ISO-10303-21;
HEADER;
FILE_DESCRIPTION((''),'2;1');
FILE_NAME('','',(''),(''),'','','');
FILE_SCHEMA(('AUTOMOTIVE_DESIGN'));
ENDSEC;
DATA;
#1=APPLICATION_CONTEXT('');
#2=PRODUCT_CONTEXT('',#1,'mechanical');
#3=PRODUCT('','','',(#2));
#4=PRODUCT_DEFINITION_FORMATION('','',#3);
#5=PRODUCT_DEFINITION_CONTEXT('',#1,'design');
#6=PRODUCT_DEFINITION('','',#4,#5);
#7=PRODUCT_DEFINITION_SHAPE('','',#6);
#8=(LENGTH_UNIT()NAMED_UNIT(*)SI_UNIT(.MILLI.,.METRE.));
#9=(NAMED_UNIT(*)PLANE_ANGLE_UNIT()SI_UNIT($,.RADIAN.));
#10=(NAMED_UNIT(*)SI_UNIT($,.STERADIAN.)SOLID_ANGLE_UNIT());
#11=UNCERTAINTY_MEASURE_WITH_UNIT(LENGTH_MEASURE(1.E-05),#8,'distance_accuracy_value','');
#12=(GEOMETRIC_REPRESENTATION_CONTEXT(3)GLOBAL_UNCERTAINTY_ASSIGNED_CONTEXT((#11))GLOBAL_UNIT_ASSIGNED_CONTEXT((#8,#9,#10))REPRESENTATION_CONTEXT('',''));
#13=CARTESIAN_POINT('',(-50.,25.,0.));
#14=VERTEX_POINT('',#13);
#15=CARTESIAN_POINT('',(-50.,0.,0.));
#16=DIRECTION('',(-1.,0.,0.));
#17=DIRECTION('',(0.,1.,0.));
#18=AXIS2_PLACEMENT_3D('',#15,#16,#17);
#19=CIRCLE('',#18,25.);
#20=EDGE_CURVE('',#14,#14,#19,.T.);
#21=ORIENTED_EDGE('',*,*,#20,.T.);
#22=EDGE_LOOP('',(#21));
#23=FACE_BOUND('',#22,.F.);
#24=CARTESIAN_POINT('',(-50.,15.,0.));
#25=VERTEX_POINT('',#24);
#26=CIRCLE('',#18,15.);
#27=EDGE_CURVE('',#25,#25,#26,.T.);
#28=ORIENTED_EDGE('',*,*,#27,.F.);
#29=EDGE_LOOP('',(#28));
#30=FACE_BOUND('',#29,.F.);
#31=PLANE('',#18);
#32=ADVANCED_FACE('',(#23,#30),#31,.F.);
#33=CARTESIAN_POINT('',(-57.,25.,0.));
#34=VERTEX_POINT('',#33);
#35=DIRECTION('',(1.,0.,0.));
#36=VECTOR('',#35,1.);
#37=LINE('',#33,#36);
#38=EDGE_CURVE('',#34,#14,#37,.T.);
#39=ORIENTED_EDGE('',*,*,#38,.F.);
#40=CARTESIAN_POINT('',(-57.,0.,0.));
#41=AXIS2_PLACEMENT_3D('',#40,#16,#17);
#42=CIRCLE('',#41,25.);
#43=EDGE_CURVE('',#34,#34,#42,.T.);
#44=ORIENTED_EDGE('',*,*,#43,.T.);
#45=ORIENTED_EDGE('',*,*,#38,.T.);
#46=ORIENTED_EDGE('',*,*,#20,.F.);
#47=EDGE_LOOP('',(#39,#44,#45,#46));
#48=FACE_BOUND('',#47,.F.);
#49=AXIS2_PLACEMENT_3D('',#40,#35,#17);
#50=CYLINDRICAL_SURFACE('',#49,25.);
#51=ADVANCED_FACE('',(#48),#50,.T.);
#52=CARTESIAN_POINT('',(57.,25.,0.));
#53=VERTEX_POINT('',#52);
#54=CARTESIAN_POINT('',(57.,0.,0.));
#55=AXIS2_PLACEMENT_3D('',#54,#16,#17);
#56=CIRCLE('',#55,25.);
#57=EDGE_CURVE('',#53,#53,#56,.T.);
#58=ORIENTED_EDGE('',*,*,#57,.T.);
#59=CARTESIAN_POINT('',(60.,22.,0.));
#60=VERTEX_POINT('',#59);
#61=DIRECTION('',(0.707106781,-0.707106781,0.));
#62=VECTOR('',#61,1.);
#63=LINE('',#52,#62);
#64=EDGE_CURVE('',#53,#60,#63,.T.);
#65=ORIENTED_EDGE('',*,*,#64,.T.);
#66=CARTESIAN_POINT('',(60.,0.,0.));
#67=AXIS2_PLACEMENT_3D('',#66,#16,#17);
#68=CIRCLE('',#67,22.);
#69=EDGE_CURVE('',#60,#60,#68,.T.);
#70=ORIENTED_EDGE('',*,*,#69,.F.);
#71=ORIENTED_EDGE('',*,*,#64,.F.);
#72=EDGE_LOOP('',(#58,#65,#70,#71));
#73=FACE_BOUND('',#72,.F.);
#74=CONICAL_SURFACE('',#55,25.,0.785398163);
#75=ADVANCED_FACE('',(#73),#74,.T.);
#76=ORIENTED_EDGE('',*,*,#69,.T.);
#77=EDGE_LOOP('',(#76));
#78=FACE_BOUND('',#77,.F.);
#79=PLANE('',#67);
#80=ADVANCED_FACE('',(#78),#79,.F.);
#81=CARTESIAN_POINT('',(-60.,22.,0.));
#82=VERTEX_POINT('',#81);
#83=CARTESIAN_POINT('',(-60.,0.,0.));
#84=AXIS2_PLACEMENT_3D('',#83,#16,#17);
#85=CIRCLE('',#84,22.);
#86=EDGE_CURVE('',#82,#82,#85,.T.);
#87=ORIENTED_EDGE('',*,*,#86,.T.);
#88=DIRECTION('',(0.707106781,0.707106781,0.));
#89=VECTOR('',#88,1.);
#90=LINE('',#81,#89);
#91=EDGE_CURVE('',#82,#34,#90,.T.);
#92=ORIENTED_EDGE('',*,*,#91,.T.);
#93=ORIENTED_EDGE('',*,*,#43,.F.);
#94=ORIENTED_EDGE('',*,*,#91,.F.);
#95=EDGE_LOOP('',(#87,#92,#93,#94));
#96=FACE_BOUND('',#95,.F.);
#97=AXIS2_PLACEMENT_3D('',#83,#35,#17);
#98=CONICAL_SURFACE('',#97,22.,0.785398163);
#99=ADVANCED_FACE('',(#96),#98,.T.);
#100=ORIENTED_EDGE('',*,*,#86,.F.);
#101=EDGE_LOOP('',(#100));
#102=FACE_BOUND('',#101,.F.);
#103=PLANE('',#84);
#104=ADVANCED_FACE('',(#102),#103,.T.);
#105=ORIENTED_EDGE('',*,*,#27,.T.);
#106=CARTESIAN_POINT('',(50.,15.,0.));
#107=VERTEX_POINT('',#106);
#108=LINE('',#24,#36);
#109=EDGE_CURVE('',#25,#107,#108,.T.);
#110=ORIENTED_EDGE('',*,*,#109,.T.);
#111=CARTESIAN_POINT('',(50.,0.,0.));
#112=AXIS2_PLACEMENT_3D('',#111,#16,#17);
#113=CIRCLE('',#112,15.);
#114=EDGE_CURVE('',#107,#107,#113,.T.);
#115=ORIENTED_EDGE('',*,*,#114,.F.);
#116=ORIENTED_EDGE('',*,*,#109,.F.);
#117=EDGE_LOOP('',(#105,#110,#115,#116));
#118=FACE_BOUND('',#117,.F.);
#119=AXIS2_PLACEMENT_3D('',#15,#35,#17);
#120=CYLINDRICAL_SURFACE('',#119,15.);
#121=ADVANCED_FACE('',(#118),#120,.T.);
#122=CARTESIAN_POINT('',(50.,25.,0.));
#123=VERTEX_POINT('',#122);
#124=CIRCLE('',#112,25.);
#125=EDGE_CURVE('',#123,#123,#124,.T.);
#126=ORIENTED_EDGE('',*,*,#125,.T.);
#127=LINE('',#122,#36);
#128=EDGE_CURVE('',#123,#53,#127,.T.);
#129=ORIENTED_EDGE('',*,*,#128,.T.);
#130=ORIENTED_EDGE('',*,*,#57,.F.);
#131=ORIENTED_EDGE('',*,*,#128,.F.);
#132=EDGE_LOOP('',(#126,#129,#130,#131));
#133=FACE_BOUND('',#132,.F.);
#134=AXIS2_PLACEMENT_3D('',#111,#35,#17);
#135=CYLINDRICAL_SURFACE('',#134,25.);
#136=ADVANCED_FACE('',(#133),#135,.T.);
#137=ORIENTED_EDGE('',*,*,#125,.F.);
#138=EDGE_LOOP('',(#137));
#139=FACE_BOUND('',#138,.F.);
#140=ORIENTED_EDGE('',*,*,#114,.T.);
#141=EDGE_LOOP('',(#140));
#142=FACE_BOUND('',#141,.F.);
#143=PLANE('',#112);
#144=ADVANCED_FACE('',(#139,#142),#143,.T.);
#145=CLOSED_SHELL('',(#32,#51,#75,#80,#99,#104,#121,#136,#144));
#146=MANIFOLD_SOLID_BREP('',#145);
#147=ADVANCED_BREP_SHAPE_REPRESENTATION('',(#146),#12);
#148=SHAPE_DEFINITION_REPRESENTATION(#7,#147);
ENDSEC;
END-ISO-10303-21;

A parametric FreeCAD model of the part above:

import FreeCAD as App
import Part
import Sketcher
from FreeCAD import Vector
Q = App.Units.Quantity

doc = App.newDocument("Part")
body = doc.addObject("PartDesign::Body", "Body")

# Sketch on XY plane
sketch1 = body.newObject("Sketcher::SketchObject", "Sketch")
sketch1.AttachmentSupport = (doc.getObject("XY_Plane"), [""])
sketch1.MapMode = "FlatFace"
sketch1.addGeometry(Part.LineSegment(Vector(50, 15, 0), Vector(-50, 15, 0)), False)
sketch1.addGeometry(Part.LineSegment(Vector(-50, 15, 0), Vector(-50, 25, 0)), False)
sketch1.addGeometry(Part.LineSegment(Vector(-50, 25, 0), Vector(-57, 25, 0)), False)
sketch1.addGeometry(Part.LineSegment(Vector(-57, 25, 0), Vector(-60, 22, 0)), False)
sketch1.addGeometry(Part.LineSegment(Vector(-60, 22, 0), Vector(-60, 0, 0)), False)
sketch1.addGeometry(Part.LineSegment(Vector(-60, 0, 0), Vector(60, 0, 0)), False)
sketch1.addGeometry(Part.LineSegment(Vector(60, 0, 0), Vector(60, 22, 0)), False)
sketch1.addGeometry(Part.LineSegment(Vector(60, 22, 0), Vector(57, 25, 0)), False)
sketch1.addGeometry(Part.LineSegment(Vector(57, 25, 0), Vector(50, 25, 0)), False)
sketch1.addGeometry(Part.LineSegment(Vector(50, 25, 0), Vector(50, 15, 0)), False)
sketch1.addConstraint(Sketcher.Constraint("Coincident", 0, 2, 1, 1))
sketch1.addConstraint(Sketcher.Constraint("Coincident", 1, 2, 2, 1))
sketch1.addConstraint(Sketcher.Constraint("Coincident", 2, 2, 3, 1))
sketch1.addConstraint(Sketcher.Constraint("Coincident", 3, 2, 4, 1))
sketch1.addConstraint(Sketcher.Constraint("Coincident", 4, 2, 5, 1))
sketch1.addConstraint(Sketcher.Constraint("Coincident", 5, 2, 6, 1))
sketch1.addConstraint(Sketcher.Constraint("Coincident", 6, 2, 7, 1))
sketch1.addConstraint(Sketcher.Constraint("Coincident", 7, 2, 8, 1))
sketch1.addConstraint(Sketcher.Constraint("Coincident", 8, 2, 9, 1))
sketch1.addConstraint(Sketcher.Constraint("Coincident", 9, 2, 0, 1))
sketch1.addConstraint(Sketcher.Constraint("Horizontal", 0))
sketch1.addConstraint(Sketcher.Constraint("Vertical", 1))
sketch1.addConstraint(Sketcher.Constraint("Horizontal", 2))
sketch1.addConstraint(Sketcher.Constraint("Vertical", 4))
sketch1.addConstraint(Sketcher.Constraint("Horizontal", 5))
sketch1.addConstraint(Sketcher.Constraint("Vertical", 6))
sketch1.addConstraint(Sketcher.Constraint("Horizontal", 8))
sketch1.addConstraint(Sketcher.Constraint("Vertical", 9))
sketch1.addConstraint(Sketcher.Constraint("Symmetric", 4, 2, 5, 2, -1, 1))
sketch1.addConstraint(Sketcher.Constraint("Symmetric", 2, 2, 7, 2, -2))
sketch1.addConstraint(Sketcher.Constraint("Perpendicular", 3, 7))
sketch1.addConstraint(Sketcher.Constraint("Horizontal", 3, 2, 6, 2))
sketch1.addConstraint(Sketcher.Constraint("Equal", 2, 8))
sketch1.addConstraint(Sketcher.Constraint("DistanceX", 0, 2, 0, 1, Q("100 mm")))
sketch1.addConstraint(Sketcher.Constraint("DistanceX", 2, 2, 2, 1, Q("7 mm")))
sketch1.addConstraint(Sketcher.Constraint("DistanceX", 5, 1, 5, 2, Q("120 mm")))
sketch1.addConstraint(Sketcher.Constraint("DistanceY", 1, 1, 1, 2, Q("10 mm")))
sketch1.addConstraint(Sketcher.Constraint("DistanceY", 4, 2, 4, 1, Q("22 mm")))
revolution = body.newObject("PartDesign::Revolution", "Revolution")
revolution.Profile = sketch1
revolution.ReferenceAxis = (sketch1, ["H_Axis"])
revolution.Angle = 360

doc.recompute()
